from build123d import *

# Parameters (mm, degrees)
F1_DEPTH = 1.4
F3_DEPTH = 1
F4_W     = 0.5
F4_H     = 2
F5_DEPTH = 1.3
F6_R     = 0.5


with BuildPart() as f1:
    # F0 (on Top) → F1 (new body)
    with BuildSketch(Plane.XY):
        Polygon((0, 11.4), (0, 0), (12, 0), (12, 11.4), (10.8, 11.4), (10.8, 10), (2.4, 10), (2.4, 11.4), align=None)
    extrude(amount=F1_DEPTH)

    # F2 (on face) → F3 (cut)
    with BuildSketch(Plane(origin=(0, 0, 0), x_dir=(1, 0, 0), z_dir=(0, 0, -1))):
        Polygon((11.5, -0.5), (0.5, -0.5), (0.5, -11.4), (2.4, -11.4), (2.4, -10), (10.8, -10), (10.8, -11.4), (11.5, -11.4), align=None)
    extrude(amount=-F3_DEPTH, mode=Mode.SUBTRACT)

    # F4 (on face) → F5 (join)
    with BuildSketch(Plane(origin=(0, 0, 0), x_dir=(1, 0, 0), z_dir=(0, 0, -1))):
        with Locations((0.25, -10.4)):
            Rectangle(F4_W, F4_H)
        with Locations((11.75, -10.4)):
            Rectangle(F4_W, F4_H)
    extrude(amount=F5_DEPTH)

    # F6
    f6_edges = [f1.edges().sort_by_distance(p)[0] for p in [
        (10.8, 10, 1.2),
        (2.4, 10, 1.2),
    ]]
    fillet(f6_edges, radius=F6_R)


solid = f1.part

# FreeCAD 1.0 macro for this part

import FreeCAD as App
import Part
import Sketcher

V = App.Vector


def edges_at(feature, points):
    """Names of the edges that pass closest to the given points."""
    edges = feature.Shape.Edges
    near = lambda p: min(range(len(edges)), key=lambda i: edges[i].distToShape(Part.Vertex(*p))[0])
    return sorted({f"Edge{near(p) + 1}" for p in points})


def add_polygon(sketch, points):
    """Adds a closed chain of lines whose ends are joined by coincident constraints."""
    first, n = sketch.GeometryCount, len(points)
    for a, b in zip(points, points[1:] + points[:1]):
        sketch.addGeometry(Part.LineSegment(App.Vector(*a, 0), App.Vector(*b, 0)), False)
    for i in range(n):
        sketch.addConstraint(Sketcher.Constraint("Coincident", first + i, 2, first + (i + 1) % n, 1))

doc = App.newDocument("Part")
body = doc.addObject("PartDesign::Body", "Body")

# Sketch on XY plane
sketch1 = body.newObject("Sketcher::SketchObject", "Sketch")
sketch1.AttachmentSupport = (doc.getObject("XY_Plane"), [""])
sketch1.MapMode = "FlatFace"
add_polygon(sketch1, [(0, 11.4), (0, 0), (12, 0), (12, 11.4), (10.8, 11.4), (10.8, 10), (2.4, 10), (2.4, 11.4)])  # lines 0-7
sketch1.addConstraint([
    Sketcher.Constraint("Vertical", 0),
    Sketcher.Constraint("Horizontal", 1),
    Sketcher.Constraint("Vertical", 2),
    Sketcher.Constraint("Horizontal", 3),
    Sketcher.Constraint("Vertical", 4),
    Sketcher.Constraint("Horizontal", 5),
    Sketcher.Constraint("Vertical", 6),
    Sketcher.Constraint("Horizontal", 7),
    Sketcher.Constraint("Coincident", 0, 2, -1, 1),
    Sketcher.Constraint("Horizontal", 3, 2, 6, 2),
    Sketcher.Constraint("DistanceX", 1, 1, 1, 2, 12.0),
    Sketcher.Constraint("DistanceX", 3, 2, 3, 1, 1.2),
    Sketcher.Constraint("DistanceX", 5, 2, 5, 1, 8.4),
    Sketcher.Constraint("DistanceY", 0, 2, 0, 1, 11.4),
    Sketcher.Constraint("DistanceY", 4, 2, 4, 1, 1.4),
])
pad1 = body.newObject("PartDesign::Pad", "Pad")
pad1.Profile = sketch1
pad1.Length = 1.4

# Sketch on XY plane
sketch2 = body.newObject("Sketcher::SketchObject", "Sketch001")
sketch2.AttachmentSupport = (doc.getObject("XY_Plane"), [""])
sketch2.MapMode = "FlatFace"
add_polygon(sketch2, [(11.5, 0.5), (0.5, 0.5), (0.5, 11.4), (2.4, 11.4), (2.4, 10), (10.8, 10), (10.8, 11.4), (11.5, 11.4)])  # lines 0-7
sketch2.addConstraint([
    Sketcher.Constraint("Horizontal", 0),
    Sketcher.Constraint("Vertical", 1),
    Sketcher.Constraint("Horizontal", 2),
    Sketcher.Constraint("Vertical", 3),
    Sketcher.Constraint("Horizontal", 4),
    Sketcher.Constraint("Vertical", 5),
    Sketcher.Constraint("Horizontal", 6),
    Sketcher.Constraint("Vertical", 7),
    Sketcher.Constraint("Horizontal", 2, 2, 5, 2),
    Sketcher.Constraint("DistanceX", 0, 2, 0, 1, 11.0),
    Sketcher.Constraint("DistanceX", 2, 1, 2, 2, 1.9),
    Sketcher.Constraint("DistanceX", 4, 1, 4, 2, 8.4),
    Sketcher.Constraint("DistanceY", 1, 1, 1, 2, 10.9),
    Sketcher.Constraint("DistanceY", 3, 2, 3, 1, 1.4),
    Sketcher.Constraint("DistanceY", -1, 1, 3, 2, 10.0),
    Sketcher.Constraint("DistanceX", -1, 1, 0, 2, 0.5),
])
pocket1 = body.newObject("PartDesign::Pocket", "Pocket")
pocket1.Profile = sketch2
pocket1.Length = 1
pocket1.Reversed = True

# Sketch on XY plane
sketch3 = body.newObject("Sketcher::SketchObject", "Sketch002")
sketch3.AttachmentSupport = (doc.getObject("XY_Plane"), [""])
sketch3.MapMode = "FlatFace"
add_polygon(sketch3, [(0, 9.4), (0, 11.4), (0.5, 11.4), (0.5, 9.4)])  # lines 0-3
add_polygon(sketch3, [(11.5, 9.4), (11.5, 11.4), (12, 11.4), (12, 9.4)])  # lines 4-7
sketch3.addConstraint([
    Sketcher.Constraint("Vertical", 0),
    Sketcher.Constraint("Horizontal", 1),
    Sketcher.Constraint("Vertical", 2),
    Sketcher.Constraint("Horizontal", 3),
    Sketcher.Constraint("Vertical", 4),
    Sketcher.Constraint("Horizontal", 5),
    Sketcher.Constraint("Vertical", 6),
    Sketcher.Constraint("Horizontal", 7),
    Sketcher.Constraint("PointOnObject", 0, 2, -2),
    Sketcher.Constraint("Horizontal", 1, 2, 4, 2),
    Sketcher.Constraint("Horizontal", 3, 2, 6, 2),
    Sketcher.Constraint("Equal", 3, 5),
    Sketcher.Constraint("DistanceY", 0, 1, 0, 2, 2.0),
    Sketcher.Constraint("DistanceX", 1, 1, 1, 2, 0.5),
    Sketcher.Constraint("DistanceX", -1, 1, 5, 2, 12.0),
    Sketcher.Constraint("DistanceY", -1, 1, 0, 2, 11.4),
])
pad2 = body.newObject("PartDesign::Pad", "Pad001")
pad2.Profile = sketch3
pad2.Length = 1.3
pad2.Reversed = True
doc.recompute()

fillet = body.newObject("PartDesign::Fillet", "Fillet")
fillet.Base = (pad2, edges_at(pad2, [(10.8, 10, 1.2), (2.4, 10, 1.2)]))
fillet.Radius = 0.5

doc.recompute()
